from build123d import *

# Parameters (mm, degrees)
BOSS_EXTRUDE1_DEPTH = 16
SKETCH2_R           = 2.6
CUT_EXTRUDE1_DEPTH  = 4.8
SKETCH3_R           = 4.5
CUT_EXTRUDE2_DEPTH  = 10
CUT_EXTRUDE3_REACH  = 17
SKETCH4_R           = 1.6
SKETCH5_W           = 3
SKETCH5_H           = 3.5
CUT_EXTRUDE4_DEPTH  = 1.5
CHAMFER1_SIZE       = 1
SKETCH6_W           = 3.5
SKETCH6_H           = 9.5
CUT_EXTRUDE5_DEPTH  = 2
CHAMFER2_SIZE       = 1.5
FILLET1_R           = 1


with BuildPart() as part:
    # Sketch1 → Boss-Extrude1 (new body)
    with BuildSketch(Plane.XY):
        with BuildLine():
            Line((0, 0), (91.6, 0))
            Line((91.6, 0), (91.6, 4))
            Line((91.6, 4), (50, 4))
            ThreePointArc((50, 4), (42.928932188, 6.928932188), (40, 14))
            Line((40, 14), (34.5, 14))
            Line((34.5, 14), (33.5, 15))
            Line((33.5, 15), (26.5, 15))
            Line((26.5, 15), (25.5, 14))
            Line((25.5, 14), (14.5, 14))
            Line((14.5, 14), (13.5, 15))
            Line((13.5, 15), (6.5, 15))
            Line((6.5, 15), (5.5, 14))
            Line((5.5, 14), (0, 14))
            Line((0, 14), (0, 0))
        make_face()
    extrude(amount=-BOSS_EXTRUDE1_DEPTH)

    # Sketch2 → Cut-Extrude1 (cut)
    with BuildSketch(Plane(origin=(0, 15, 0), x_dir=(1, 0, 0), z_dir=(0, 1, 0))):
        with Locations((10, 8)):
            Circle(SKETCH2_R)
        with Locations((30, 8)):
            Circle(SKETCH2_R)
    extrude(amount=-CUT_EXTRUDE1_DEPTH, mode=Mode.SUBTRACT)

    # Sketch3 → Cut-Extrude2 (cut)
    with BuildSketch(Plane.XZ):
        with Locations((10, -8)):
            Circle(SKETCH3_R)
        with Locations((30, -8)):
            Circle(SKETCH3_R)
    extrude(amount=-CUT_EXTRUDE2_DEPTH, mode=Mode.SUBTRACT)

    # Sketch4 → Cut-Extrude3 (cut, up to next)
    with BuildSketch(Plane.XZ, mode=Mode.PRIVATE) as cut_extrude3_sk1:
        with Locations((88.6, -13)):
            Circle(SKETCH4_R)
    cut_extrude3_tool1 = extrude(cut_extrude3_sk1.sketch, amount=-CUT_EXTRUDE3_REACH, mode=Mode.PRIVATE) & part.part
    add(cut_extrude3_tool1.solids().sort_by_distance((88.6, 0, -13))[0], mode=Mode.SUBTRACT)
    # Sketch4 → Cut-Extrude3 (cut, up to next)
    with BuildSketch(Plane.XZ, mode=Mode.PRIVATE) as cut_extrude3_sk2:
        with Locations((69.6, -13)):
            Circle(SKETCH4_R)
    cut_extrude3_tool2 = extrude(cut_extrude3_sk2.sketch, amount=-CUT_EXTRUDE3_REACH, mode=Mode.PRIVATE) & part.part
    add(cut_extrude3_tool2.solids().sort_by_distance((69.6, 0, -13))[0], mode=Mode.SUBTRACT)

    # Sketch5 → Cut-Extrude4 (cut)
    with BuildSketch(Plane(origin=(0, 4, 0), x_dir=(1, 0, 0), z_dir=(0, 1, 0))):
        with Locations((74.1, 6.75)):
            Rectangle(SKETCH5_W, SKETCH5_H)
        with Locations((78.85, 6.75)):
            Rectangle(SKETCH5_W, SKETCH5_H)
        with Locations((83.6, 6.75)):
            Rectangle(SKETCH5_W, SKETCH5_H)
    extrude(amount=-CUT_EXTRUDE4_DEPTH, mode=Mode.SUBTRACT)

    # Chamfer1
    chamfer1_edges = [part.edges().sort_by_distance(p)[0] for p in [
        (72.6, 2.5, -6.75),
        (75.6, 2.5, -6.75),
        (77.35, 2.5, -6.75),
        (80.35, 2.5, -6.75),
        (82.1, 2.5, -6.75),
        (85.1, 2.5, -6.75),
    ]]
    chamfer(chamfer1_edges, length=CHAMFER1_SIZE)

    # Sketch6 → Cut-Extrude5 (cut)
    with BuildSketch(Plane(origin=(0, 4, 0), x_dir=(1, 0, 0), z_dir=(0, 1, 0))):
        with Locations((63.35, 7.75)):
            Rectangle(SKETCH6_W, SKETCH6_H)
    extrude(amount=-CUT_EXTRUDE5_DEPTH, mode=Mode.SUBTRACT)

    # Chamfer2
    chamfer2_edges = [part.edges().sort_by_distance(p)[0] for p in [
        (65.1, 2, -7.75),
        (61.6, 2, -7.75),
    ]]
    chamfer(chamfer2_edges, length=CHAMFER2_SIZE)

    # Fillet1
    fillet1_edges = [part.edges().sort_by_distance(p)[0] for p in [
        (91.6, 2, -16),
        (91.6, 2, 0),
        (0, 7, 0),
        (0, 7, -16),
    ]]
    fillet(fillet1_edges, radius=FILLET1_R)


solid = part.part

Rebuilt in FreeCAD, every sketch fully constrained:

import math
import FreeCAD as App
import Part
import Sketcher
Q = App.Units.Quantity


def edges_at(feature, points):
    """Names of the edges that pass closest to the given points."""
    edges = feature.Shape.Edges
    near = lambda p: min(range(len(edges)), key=lambda i: edges[i].distToShape(Part.Vertex(*p))[0])
    return sorted({f"Edge{near(p) + 1}" for p in points})

doc = App.newDocument("Part")
body = doc.addObject("PartDesign::Body", "Body")

sketch1 = doc.addObject("Sketcher::SketchObject", "Sketch")
body.addObject(sketch1)
sketch1.AttachmentSupport = (doc.XY_Plane, [""])
sketch1.MapMode = "FlatFace"
sketch1.addGeometry(Part.LineSegment(App.Vector(0, 0, 0), App.Vector(91.6, 0, 0)), False)
sketch1.addGeometry(Part.LineSegment(App.Vector(91.6, 0, 0), App.Vector(91.6, 4, 0)), False)
sketch1.addGeometry(Part.LineSegment(App.Vector(91.6, 4, 0), App.Vector(50, 4, 0)), False)
sketch1.addGeometry(Part.ArcOfCircle(Part.Circle(App.Vector(50, 14, 0), App.Vector(0, 0, 1), 10), math.radians(180), math.radians(270)), False)
sketch1.addGeometry(Part.LineSegment(App.Vector(40, 14, 0), App.Vector(34.5, 14, 0)), False)
sketch1.addGeometry(Part.LineSegment(App.Vector(34.5, 14, 0), App.Vector(33.5, 15, 0)), False)
sketch1.addGeometry(Part.LineSegment(App.Vector(33.5, 15, 0), App.Vector(26.5, 15, 0)), False)
sketch1.addGeometry(Part.LineSegment(App.Vector(26.5, 15, 0), App.Vector(25.5, 14, 0)), False)
sketch1.addGeometry(Part.LineSegment(App.Vector(25.5, 14, 0), App.Vector(14.5, 14, 0)), False)
sketch1.addGeometry(Part.LineSegment(App.Vector(14.5, 14, 0), App.Vector(13.5, 15, 0)), False)
sketch1.addGeometry(Part.LineSegment(App.Vector(13.5, 15, 0), App.Vector(6.5, 15, 0)), False)
sketch1.addGeometry(Part.LineSegment(App.Vector(6.5, 15, 0), App.Vector(5.5, 14, 0)), False)
sketch1.addGeometry(Part.LineSegment(App.Vector(5.5, 14, 0), App.Vector(0, 14, 0)), False)
sketch1.addGeometry(Part.LineSegment(App.Vector(0, 14, 0), App.Vector(0, 0, 0)), False)
sketch1.addConstraint(Sketcher.Constraint("Coincident", 0, 2, 1, 1))
sketch1.addConstraint(Sketcher.Constraint("Coincident", 1, 2, 2, 1))
sketch1.addConstraint(Sketcher.Constraint("Tangent", 2, 2, 3, 2))
sketch1.addConstraint(Sketcher.Constraint("Coincident", 3, 1, 4, 1))
sketch1.addConstraint(Sketcher.Constraint("Coincident", 4, 2, 5, 1))
sketch1.addConstraint(Sketcher.Constraint("Coincident", 5, 2, 6, 1))
sketch1.addConstraint(Sketcher.Constraint("Coincident", 6, 2, 7, 1))
sketch1.addConstraint(Sketcher.Constraint("Coincident", 7, 2, 8, 1))
sketch1.addConstraint(Sketcher.Constraint("Coincident", 8, 2, 9, 1))
sketch1.addConstraint(Sketcher.Constraint("Coincident", 9, 2, 10, 1))
sketch1.addConstraint(Sketcher.Constraint("Coincident", 10, 2, 11, 1))
sketch1.addConstraint(Sketcher.Constraint("Coincident", 11, 2, 12, 1))
sketch1.addConstraint(Sketcher.Constraint("Coincident", 12, 2, 13, 1))
sketch1.addConstraint(Sketcher.Constraint("Coincident", 13, 2, 0, 1))
sketch1.addConstraint(Sketcher.Constraint("Horizontal", 0))
sketch1.addConstraint(Sketcher.Constraint("Vertical", 1))
sketch1.addConstraint(Sketcher.Constraint("Horizontal", 2))
sketch1.addConstraint(Sketcher.Constraint("Horizontal", 4))
sketch1.addConstraint(Sketcher.Constraint("Horizontal", 6))
sketch1.addConstraint(Sketcher.Constraint("Horizontal", 8))
sketch1.addConstraint(Sketcher.Constraint("Horizontal", 10))
sketch1.addConstraint(Sketcher.Constraint("Horizontal", 12))
sketch1.addConstraint(Sketcher.Constraint("Vertical", 13))
sketch1.addConstraint(Sketcher.Constraint("Coincident", 13, 2, -1, 1))
sketch1.addConstraint(Sketcher.Constraint("Perpendicular", 5, 7))
sketch1.addConstraint(Sketcher.Constraint("Perpendicular", 7, 9))
sketch1.addConstraint(Sketcher.Constraint("Perpendicular", 9, 11))
sketch1.addConstraint(Sketcher.Constraint("Horizontal", 4, 2, 7, 2))
sketch1.addConstraint(Sketcher.Constraint("Horizontal", 6, 2, 9, 2))
sketch1.addConstraint(Sketcher.Constraint("Horizontal", 8, 2, 11, 2))
sketch1.addConstraint(Sketcher.Constraint("Equal", 6, 10))
sketch1.addConstraint(Sketcher.Constraint("Equal", 4, 12))
sketch1.addConstraint(Sketcher.Constraint("Equal", 5, 7))
sketch1.addConstraint(Sketcher.Constraint("Radius", 3, Q("10 mm")))
sketch1.addConstraint(Sketcher.Constraint("DistanceX", 6, 2, 6, 1, Q("7 mm")))
sketch1.addConstraint(Sketcher.Constraint("DistanceX", 8, 2, 8, 1, Q("11 mm")))
sketch1.addConstraint(Sketcher.Constraint("DistanceY", 1, 1, 1, 2, Q("4 mm")))
sketch1.addConstraint(Sketcher.Constraint("DistanceY", 13, 2, 13, 1, Q("14 mm")))
sketch1.addConstraint(Sketcher.Constraint("DistanceX", 0, 1, 0, 2, Q("91.6 mm")))
sketch1.addConstraint(Sketcher.Constraint("DistanceX", 2, 2, 2, 1, Q("41.6 mm")))
sketch1.addConstraint(Sketcher.Constraint("DistanceX", 4, 2, 4, 1, Q("5.5 mm")))
pad1 = doc.addObject("PartDesign::Pad", "Pad")
body.addObject(pad1)
pad1.Profile = sketch1
pad1.Length = 16
pad1.Reversed = True

sketch2 = doc.addObject("Sketcher::SketchObject", "Sketch001")
body.addObject(sketch2)
sketch2.AttachmentSupport = (doc.XZ_Plane, [""])
sketch2.MapMode = "FlatFace"
sketch2.AttachmentOffset = App.Placement(App.Vector(0, 0, -15), App.Rotation())
sketch2.addGeometry(Part.Circle(App.Vector(10, -8, 0), App.Vector(0, 0, 1), 2.6), False)
sketch2.addGeometry(Part.Circle(App.Vector(30, -8, 0), App.Vector(0, 0, 1), 2.6), False)
sketch2.addConstraint(Sketcher.Constraint("Equal", 0, 1))
sketch2.addConstraint(Sketcher.Constraint("Horizontal", 0, 3, 1, 3))
sketch2.addConstraint(Sketcher.Constraint("Diameter", 0, Q("5.2 mm")))
sketch2.addConstraint(Sketcher.Constraint("DistanceX", -1, 1, 0, 3, Q("10 mm")))
sketch2.addConstraint(Sketcher.Constraint("DistanceY", 0, 3, -1, 1, Q("8 mm")))
sketch2.addConstraint(Sketcher.Constraint("DistanceX", -1, 1, 1, 3, Q("30 mm")))
pocket1 = doc.addObject("PartDesign::Pocket", "Pocket")
body.addObject(pocket1)
pocket1.Profile = sketch2
pocket1.Length = 4.8
pocket1.Reversed = True

sketch3 = doc.addObject("Sketcher::SketchObject", "Sketch002")
body.addObject(sketch3)
sketch3.AttachmentSupport = (doc.XZ_Plane, [""])
sketch3.MapMode = "FlatFace"
sketch3.addGeometry(Part.Circle(App.Vector(10, -8, 0), App.Vector(0, 0, 1), 4.5), False)
sketch3.addGeometry(Part.Circle(App.Vector(30, -8, 0), App.Vector(0, 0, 1), 4.5), False)
sketch3.addConstraint(Sketcher.Constraint("Equal", 0, 1))
sketch3.addConstraint(Sketcher.Constraint("Horizontal", 0, 3, 1, 3))
sketch3.addConstraint(Sketcher.Constraint("Diameter", 0, Q("9 mm")))
sketch3.addConstraint(Sketcher.Constraint("DistanceX", -1, 1, 0, 3, Q("10 mm")))
sketch3.addConstraint(Sketcher.Constraint("DistanceY", 0, 3, -1, 1, Q("8 mm")))
sketch3.addConstraint(Sketcher.Constraint("DistanceX", -1, 1, 1, 3, Q("30 mm")))
pocket2 = doc.addObject("PartDesign::Pocket", "Pocket001")
body.addObject(pocket2)
pocket2.Profile = sketch3
pocket2.Length = 10

sketch4 = doc.addObject("Sketcher::SketchObject", "Sketch003")
body.addObject(sketch4)
sketch4.AttachmentSupport = (doc.XZ_Plane, [""])
sketch4.MapMode = "FlatFace"
sketch4.addGeometry(Part.Circle(App.Vector(88.6, -13, 0), App.Vector(0, 0, 1), 1.6), False)
sketch4.addConstraint(Sketcher.Constraint("Diameter", 0, Q("3.2 mm")))
sketch4.addConstraint(Sketcher.Constraint("DistanceY", 0, 3, -1, 1, Q("13 mm")))
sketch4.addConstraint(Sketcher.Constraint("DistanceX", -1, 1, 0, 3, Q("88.6 mm")))
pocket3 = doc.addObject("PartDesign::Pocket", "Pocket002")
body.addObject(pocket3)
pocket3.Profile = sketch4
pocket3.Type = "UpToFirst"

sketch5 = doc.addObject("Sketcher::SketchObject", "Sketch004")
body.addObject(sketch5)
sketch5.AttachmentSupport = (doc.XZ_Plane, [""])
sketch5.MapMode = "FlatFace"
sketch5.addGeometry(Part.Circle(App.Vector(69.6, -13, 0), App.Vector(0, 0, 1), 1.6), False)
sketch5.addConstraint(Sketcher.Constraint("Diameter", 0, Q("3.2 mm")))
sketch5.addConstraint(Sketcher.Constraint("DistanceY", 0, 3, -1, 1, Q("13 mm")))
sketch5.addConstraint(Sketcher.Constraint("DistanceX", -1, 1, 0, 3, Q("69.6 mm")))
pocket4 = doc.addObject("PartDesign::Pocket", "Pocket003")
body.addObject(pocket4)
pocket4.Profile = sketch5
pocket4.Type = "UpToFirst"

sketch6 = doc.addObject("Sketcher::SketchObject", "Sketch005")
body.addObject(sketch6)
sketch6.AttachmentSupport = (doc.XZ_Plane, [""])
sketch6.MapMode = "FlatFace"
sketch6.AttachmentOffset = App.Placement(App.Vector(0, 0, -4), App.Rotation())
sketch6.addGeometry(Part.LineSegment(App.Vector(72.6, -8.5, 0), App.Vector(72.6, -5, 0)), False)
sketch6.addGeometry(Part.LineSegment(App.Vector(72.6, -5, 0), App.Vector(75.6, -5, 0)), False)
sketch6.addGeometry(Part.LineSegment(App.Vector(75.6, -5, 0), App.Vector(75.6, -8.5, 0)), False)
sketch6.addGeometry(Part.LineSegment(App.Vector(75.6, -8.5, 0), App.Vector(72.6, -8.5, 0)), False)
sketch6.addGeometry(Part.LineSegment(App.Vector(77.35, -8.5, 0), App.Vector(77.35, -5, 0)), False)
sketch6.addGeometry(Part.LineSegment(App.Vector(77.35, -5, 0), App.Vector(80.35, -5, 0)), False)
sketch6.addGeometry(Part.LineSegment(App.Vector(80.35, -5, 0), App.Vector(80.35, -8.5, 0)), False)
sketch6.addGeometry(Part.LineSegment(App.Vector(80.35, -8.5, 0), App.Vector(77.35, -8.5, 0)), False)
sketch6.addGeometry(Part.LineSegment(App.Vector(82.1, -8.5, 0), App.Vector(82.1, -5, 0)), False)
sketch6.addGeometry(Part.LineSegment(App.Vector(82.1, -5, 0), App.Vector(85.1, -5, 0)), False)
sketch6.addGeometry(Part.LineSegment(App.Vector(85.1, -5, 0), App.Vector(85.1, -8.5, 0)), False)
sketch6.addGeometry(Part.LineSegment(App.Vector(85.1, -8.5, 0), App.Vector(82.1, -8.5, 0)), False)
sketch6.addConstraint(Sketcher.Constraint("Coincident", 0, 2, 1, 1))
sketch6.addConstraint(Sketcher.Constraint("Coincident", 1, 2, 2, 1))
sketch6.addConstraint(Sketcher.Constraint("Coincident", 2, 2, 3, 1))
sketch6.addConstraint(Sketcher.Constraint("Coincident", 3, 2, 0, 1))
sketch6.addConstraint(Sketcher.Constraint("Coincident", 4, 2, 5, 1))
sketch6.addConstraint(Sketcher.Constraint("Coincident", 5, 2, 6, 1))
sketch6.addConstraint(Sketcher.Constraint("Coincident", 6, 2, 7, 1))
sketch6.addConstraint(Sketcher.Constraint("Coincident", 7, 2, 4, 1))
sketch6.addConstraint(Sketcher.Constraint("Coincident", 8, 2, 9, 1))
sketch6.addConstraint(Sketcher.Constraint("Coincident", 9, 2, 10, 1))
sketch6.addConstraint(Sketcher.Constraint("Coincident", 10, 2, 11, 1))
sketch6.addConstraint(Sketcher.Constraint("Coincident", 11, 2, 8, 1))
sketch6.addConstraint(Sketcher.Constraint("Vertical", 0))
sketch6.addConstraint(Sketcher.Constraint("Horizontal", 1))
sketch6.addConstraint(Sketcher.Constraint("Vertical", 2))
sketch6.addConstraint(Sketcher.Constraint("Horizontal", 3))
sketch6.addConstraint(Sketcher.Constraint("Vertical", 4))
sketch6.addConstraint(Sketcher.Constraint("Horizontal", 5))
sketch6.addConstraint(Sketcher.Constraint("Vertical", 6))
sketch6.addConstraint(Sketcher.Constraint("Horizontal", 7))
sketch6.addConstraint(Sketcher.Constraint("Vertical", 8))
sketch6.addConstraint(Sketcher.Constraint("Horizontal", 9))
sketch6.addConstraint(Sketcher.Constraint("Vertical", 10))
sketch6.addConstraint(Sketcher.Constraint("Horizontal", 11))
sketch6.addConstraint(Sketcher.Constraint("Horizontal", 1, 2, 4, 2))
sketch6.addConstraint(Sketcher.Constraint("Horizontal", 3, 2, 6, 2))
sketch6.addConstraint(Sketcher.Constraint("Horizontal", 5, 2, 8, 2))
sketch6.addConstraint(Sketcher.Constraint("Horizontal", 7, 2, 10, 2))
sketch6.addConstraint(Sketcher.Constraint("Equal", 3, 5))
sketch6.addConstraint(Sketcher.Constraint("Equal", 7, 9))
sketch6.addConstraint(Sketcher.Constraint("DistanceX", 1, 1, 1, 2, Q("3 mm")))
sketch6.addConstraint(Sketcher.Constraint("DistanceY", 0, 1, 0, 2, Q("3.5 mm")))
sketch6.addConstraint(Sketcher.Constraint("DistanceY", 0, 2, -1, 1, Q("5 mm")))
sketch6.addConstraint(Sketcher.Constraint("DistanceX", -1, 1, 0, 2, Q("72.6 mm")))
sketch6.addConstraint(Sketcher.Constraint("DistanceX", -1, 1, 8, 2, Q("82.1 mm")))
sketch6.addConstraint(Sketcher.Constraint("DistanceX", -1, 1, 4, 2, Q("77.35 mm")))
pocket5 = doc.addObject("PartDesign::Pocket", "Pocket004")
body.addObject(pocket5)
pocket5.Profile = sketch6
pocket5.Length = 1.5
pocket5.Reversed = True
doc.recompute()

chamfer = doc.addObject("PartDesign::Chamfer", "Chamfer")
body.addObject(chamfer)
chamfer.Base = (pocket5, edges_at(pocket5, [
    (72.6, 2.5, -6.75),
    (75.6, 2.5, -6.75),
    (77.35, 2.5, -6.75),
    (80.35, 2.5, -6.75),
    (82.1, 2.5, -6.75),
    (85.1, 2.5, -6.75),
]))
chamfer.Size = 1

sketch7 = doc.addObject("Sketcher::SketchObject", "Sketch006")
body.addObject(sketch7)
sketch7.AttachmentSupport = (doc.XZ_Plane, [""])
sketch7.MapMode = "FlatFace"
sketch7.AttachmentOffset = App.Placement(App.Vector(0, 0, -4), App.Rotation())
sketch7.addGeometry(Part.LineSegment(App.Vector(61.6, -12.5, 0), App.Vector(61.6, -3, 0)), False)
sketch7.addGeometry(Part.LineSegment(App.Vector(61.6, -3, 0), App.Vector(65.1, -3, 0)), False)
sketch7.addGeometry(Part.LineSegment(App.Vector(65.1, -3, 0), App.Vector(65.1, -12.5, 0)), False)
sketch7.addGeometry(Part.LineSegment(App.Vector(65.1, -12.5, 0), App.Vector(61.6, -12.5, 0)), False)
sketch7.addConstraint(Sketcher.Constraint("Coincident", 0, 2, 1, 1))
sketch7.addConstraint(Sketcher.Constraint("Coincident", 1, 2, 2, 1))
sketch7.addConstraint(Sketcher.Constraint("Coincident", 2, 2, 3, 1))
sketch7.addConstraint(Sketcher.Constraint("Coincident", 3, 2, 0, 1))
sketch7.addConstraint(Sketcher.Constraint("Vertical", 0))
sketch7.addConstraint(Sketcher.Constraint("Horizontal", 1))
sketch7.addConstraint(Sketcher.Constraint("Vertical", 2))
sketch7.addConstraint(Sketcher.Constraint("Horizontal", 3))
sketch7.addConstraint(Sketcher.Constraint("DistanceX", 1, 1, 1, 2, Q("3.5 mm")))
sketch7.addConstraint(Sketcher.Constraint("DistanceY", 0, 1, 0, 2, Q("9.5 mm")))
sketch7.addConstraint(Sketcher.Constraint("DistanceY", 0, 2, -1, 1, Q("3 mm")))
sketch7.addConstraint(Sketcher.Constraint("DistanceX", -1, 1, 0, 2, Q("61.6 mm")))
pocket6 = doc.addObject("PartDesign::Pocket", "Pocket005")
body.addObject(pocket6)
pocket6.Profile = sketch7
pocket6.Length = 2
pocket6.Reversed = True
doc.recompute()

chamfer2 = doc.addObject("PartDesign::Chamfer", "Chamfer001")
body.addObject(chamfer2)
chamfer2.Base = (pocket6, edges_at(pocket6, [(65.1, 2, -7.75), (61.6, 2, -7.75)]))
chamfer2.Size = 1.5
doc.recompute()

fillet = doc.addObject("PartDesign::Fillet", "Fillet")
body.addObject(fillet)
fillet.Base = (chamfer2, edges_at(chamfer2, [
    (91.6, 2, -16),
    (91.6, 2, 0),
    (0, 7, 0),
    (0, 7, -16),
]))
fillet.Radius = 1

doc.recompute()
